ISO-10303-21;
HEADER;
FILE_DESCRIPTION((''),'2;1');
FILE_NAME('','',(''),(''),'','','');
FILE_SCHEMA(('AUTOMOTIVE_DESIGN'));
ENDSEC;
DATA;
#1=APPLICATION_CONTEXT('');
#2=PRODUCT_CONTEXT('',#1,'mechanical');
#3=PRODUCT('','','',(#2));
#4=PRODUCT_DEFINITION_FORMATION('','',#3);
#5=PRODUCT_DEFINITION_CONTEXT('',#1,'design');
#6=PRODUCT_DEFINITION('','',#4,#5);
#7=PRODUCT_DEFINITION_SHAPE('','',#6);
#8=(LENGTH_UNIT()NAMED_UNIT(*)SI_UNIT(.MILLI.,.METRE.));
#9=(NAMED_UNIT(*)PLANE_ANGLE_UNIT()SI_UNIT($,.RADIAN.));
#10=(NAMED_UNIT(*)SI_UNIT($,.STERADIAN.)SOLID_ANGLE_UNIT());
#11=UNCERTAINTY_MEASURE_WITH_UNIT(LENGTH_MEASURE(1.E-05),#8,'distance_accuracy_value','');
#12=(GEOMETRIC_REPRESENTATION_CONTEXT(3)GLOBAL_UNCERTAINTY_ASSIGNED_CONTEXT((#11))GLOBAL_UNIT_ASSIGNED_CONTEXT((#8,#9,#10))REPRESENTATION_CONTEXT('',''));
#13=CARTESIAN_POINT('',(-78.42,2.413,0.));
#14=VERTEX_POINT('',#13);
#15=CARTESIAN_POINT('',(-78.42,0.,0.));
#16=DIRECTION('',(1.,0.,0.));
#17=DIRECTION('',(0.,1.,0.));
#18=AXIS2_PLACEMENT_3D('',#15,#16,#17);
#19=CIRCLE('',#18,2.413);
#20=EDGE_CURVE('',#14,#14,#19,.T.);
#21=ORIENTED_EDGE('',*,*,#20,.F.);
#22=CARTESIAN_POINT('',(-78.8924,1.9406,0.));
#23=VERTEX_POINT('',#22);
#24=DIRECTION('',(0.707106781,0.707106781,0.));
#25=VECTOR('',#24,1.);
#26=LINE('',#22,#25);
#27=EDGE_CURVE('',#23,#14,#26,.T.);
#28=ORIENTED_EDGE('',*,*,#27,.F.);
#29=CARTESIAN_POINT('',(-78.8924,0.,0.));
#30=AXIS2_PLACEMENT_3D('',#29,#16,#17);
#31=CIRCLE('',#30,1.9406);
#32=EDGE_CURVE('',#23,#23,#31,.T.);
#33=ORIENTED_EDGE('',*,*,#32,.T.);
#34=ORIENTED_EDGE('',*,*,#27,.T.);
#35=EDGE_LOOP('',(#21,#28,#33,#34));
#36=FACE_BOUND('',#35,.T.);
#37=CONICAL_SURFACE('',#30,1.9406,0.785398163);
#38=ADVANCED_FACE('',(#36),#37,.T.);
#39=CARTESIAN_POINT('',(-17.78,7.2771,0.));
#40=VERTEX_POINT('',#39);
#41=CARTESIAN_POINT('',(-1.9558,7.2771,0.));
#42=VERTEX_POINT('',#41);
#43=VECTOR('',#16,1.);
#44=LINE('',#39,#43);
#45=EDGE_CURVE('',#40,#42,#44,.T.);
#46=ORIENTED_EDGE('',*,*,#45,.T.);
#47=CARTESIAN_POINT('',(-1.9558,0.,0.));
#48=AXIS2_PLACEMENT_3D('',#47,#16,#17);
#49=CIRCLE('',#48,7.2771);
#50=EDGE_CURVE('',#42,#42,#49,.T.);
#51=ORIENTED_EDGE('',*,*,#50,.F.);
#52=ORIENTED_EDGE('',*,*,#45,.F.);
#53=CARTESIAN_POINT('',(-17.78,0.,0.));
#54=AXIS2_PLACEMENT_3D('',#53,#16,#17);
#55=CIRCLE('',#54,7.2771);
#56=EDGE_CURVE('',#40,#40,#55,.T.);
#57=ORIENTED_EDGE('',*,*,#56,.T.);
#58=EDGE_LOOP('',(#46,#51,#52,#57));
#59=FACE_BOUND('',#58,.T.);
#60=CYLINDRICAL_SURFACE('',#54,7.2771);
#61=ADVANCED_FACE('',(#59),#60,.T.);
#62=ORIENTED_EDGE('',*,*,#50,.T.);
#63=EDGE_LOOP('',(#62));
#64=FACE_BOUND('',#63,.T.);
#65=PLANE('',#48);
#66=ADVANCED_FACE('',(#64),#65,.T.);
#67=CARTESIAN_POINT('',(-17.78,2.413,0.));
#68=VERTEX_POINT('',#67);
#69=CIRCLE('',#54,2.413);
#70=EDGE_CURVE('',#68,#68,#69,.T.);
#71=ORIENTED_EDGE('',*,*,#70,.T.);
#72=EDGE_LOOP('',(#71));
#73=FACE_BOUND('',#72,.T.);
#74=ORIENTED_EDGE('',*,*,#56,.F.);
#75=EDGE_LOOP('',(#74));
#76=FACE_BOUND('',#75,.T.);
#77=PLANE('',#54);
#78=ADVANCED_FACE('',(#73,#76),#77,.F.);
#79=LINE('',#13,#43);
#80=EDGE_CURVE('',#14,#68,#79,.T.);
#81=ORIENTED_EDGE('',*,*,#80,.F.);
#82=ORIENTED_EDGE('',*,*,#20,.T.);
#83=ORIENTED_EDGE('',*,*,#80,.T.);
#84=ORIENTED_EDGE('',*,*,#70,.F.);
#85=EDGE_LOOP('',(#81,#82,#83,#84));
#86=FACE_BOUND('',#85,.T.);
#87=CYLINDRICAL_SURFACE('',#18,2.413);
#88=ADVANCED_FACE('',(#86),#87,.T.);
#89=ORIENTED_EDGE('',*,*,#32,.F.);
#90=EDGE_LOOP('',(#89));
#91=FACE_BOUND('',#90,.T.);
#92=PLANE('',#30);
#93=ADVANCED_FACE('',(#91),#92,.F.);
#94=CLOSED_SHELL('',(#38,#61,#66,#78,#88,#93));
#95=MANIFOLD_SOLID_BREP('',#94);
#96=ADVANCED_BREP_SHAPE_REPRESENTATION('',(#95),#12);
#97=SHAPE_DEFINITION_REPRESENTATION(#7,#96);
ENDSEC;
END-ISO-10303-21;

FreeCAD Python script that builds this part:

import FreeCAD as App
import Part
import Sketcher
Q = App.Units.Quantity


def add_polygon(sketch, points):
    """Adds a closed chain of lines whose ends are joined by coincident constraints."""
    first, n = sketch.GeometryCount, len(points)
    for a, b in zip(points, points[1:] + points[:1]):
        sketch.addGeometry(Part.LineSegment(App.Vector(*a, 0), App.Vector(*b, 0)), False)
    for i in range(n):
        sketch.addConstraint(Sketcher.Constraint("Coincident", first + i, 2, first + (i + 1) % n, 1))

doc = App.newDocument("Part")
body = doc.addObject("PartDesign::Body", "Body")

# Sketch on XY plane
sketch1 = body.newObject("Sketcher::SketchObject", "Sketch")
sketch1.AttachmentSupport = (doc.getObject("XY_Plane"), [""])
sketch1.MapMode = "FlatFace"
add_polygon(sketch1, [(-78.9, 0), (-9.5, 0), (-9.5, 2.4), (-78.4, 2.4), (-78.9, 1.9)])  # lines 0-4
sketch1.addConstraint([
    Sketcher.Constraint("Horizontal", 0),
    Sketcher.Constraint("Vertical", 1),
    Sketcher.Constraint("Horizontal", 2),
    Sketcher.Constraint("Vertical", 4),
    Sketcher.Constraint("PointOnObject", 0, 2, -1),
    Sketcher.Constraint("Angle", 3, Q("-135 deg")),
    Sketcher.Constraint("DistanceX", 0, 1, 0, 2, Q("2.731 in")),
    Sketcher.Constraint("DistanceY", 1, 1, 1, 2, Q("0.095 in")),
    Sketcher.Constraint("DistanceX", 2, 2, 2, 1, Q("2.7124 in")),
    Sketcher.Constraint("DistanceX", 0, 2, -1, 1, Q("0.375 in")),
])
revolution = body.newObject("PartDesign::Revolution", "Revolution")
revolution.Profile = sketch1
revolution.ReferenceAxis = (sketch1, ["H_Axis"])
revolution.Angle = 360

# Sketch on XY plane
sketch2 = body.newObject("Sketcher::SketchObject", "Sketch001")
sketch2.AttachmentSupport = (doc.getObject("XY_Plane"), [""])
sketch2.MapMode = "FlatFace"
add_polygon(sketch2, [(-18, 0), (-2, 0), (-2, 7), (-18, 7)])  # lines 0-3
sketch2.addConstraint([
    Sketcher.Constraint("Horizontal", 0),
    Sketcher.Constraint("Vertical", 1),
    Sketcher.Constraint("Horizontal", 2),
    Sketcher.Constraint("Vertical", 3),
    Sketcher.Constraint("PointOnObject", 0, 2, -1),
    Sketcher.Constraint("DistanceX", 2, 2, -1, 1, Q("0.7 in")),
    Sketcher.Constraint("DistanceX", 0, 1, 0, 2, Q("0.623 in")),
    Sketcher.Constraint("DistanceY", 1, 1, 1, 2, Q("0.2865 in")),
])
revolution2 = body.newObject("PartDesign::Revolution", "Revolution001")
revolution2.Profile = sketch2
revolution2.ReferenceAxis = (sketch2, ["H_Axis"])
revolution2.Angle = 360

doc.recompute()
